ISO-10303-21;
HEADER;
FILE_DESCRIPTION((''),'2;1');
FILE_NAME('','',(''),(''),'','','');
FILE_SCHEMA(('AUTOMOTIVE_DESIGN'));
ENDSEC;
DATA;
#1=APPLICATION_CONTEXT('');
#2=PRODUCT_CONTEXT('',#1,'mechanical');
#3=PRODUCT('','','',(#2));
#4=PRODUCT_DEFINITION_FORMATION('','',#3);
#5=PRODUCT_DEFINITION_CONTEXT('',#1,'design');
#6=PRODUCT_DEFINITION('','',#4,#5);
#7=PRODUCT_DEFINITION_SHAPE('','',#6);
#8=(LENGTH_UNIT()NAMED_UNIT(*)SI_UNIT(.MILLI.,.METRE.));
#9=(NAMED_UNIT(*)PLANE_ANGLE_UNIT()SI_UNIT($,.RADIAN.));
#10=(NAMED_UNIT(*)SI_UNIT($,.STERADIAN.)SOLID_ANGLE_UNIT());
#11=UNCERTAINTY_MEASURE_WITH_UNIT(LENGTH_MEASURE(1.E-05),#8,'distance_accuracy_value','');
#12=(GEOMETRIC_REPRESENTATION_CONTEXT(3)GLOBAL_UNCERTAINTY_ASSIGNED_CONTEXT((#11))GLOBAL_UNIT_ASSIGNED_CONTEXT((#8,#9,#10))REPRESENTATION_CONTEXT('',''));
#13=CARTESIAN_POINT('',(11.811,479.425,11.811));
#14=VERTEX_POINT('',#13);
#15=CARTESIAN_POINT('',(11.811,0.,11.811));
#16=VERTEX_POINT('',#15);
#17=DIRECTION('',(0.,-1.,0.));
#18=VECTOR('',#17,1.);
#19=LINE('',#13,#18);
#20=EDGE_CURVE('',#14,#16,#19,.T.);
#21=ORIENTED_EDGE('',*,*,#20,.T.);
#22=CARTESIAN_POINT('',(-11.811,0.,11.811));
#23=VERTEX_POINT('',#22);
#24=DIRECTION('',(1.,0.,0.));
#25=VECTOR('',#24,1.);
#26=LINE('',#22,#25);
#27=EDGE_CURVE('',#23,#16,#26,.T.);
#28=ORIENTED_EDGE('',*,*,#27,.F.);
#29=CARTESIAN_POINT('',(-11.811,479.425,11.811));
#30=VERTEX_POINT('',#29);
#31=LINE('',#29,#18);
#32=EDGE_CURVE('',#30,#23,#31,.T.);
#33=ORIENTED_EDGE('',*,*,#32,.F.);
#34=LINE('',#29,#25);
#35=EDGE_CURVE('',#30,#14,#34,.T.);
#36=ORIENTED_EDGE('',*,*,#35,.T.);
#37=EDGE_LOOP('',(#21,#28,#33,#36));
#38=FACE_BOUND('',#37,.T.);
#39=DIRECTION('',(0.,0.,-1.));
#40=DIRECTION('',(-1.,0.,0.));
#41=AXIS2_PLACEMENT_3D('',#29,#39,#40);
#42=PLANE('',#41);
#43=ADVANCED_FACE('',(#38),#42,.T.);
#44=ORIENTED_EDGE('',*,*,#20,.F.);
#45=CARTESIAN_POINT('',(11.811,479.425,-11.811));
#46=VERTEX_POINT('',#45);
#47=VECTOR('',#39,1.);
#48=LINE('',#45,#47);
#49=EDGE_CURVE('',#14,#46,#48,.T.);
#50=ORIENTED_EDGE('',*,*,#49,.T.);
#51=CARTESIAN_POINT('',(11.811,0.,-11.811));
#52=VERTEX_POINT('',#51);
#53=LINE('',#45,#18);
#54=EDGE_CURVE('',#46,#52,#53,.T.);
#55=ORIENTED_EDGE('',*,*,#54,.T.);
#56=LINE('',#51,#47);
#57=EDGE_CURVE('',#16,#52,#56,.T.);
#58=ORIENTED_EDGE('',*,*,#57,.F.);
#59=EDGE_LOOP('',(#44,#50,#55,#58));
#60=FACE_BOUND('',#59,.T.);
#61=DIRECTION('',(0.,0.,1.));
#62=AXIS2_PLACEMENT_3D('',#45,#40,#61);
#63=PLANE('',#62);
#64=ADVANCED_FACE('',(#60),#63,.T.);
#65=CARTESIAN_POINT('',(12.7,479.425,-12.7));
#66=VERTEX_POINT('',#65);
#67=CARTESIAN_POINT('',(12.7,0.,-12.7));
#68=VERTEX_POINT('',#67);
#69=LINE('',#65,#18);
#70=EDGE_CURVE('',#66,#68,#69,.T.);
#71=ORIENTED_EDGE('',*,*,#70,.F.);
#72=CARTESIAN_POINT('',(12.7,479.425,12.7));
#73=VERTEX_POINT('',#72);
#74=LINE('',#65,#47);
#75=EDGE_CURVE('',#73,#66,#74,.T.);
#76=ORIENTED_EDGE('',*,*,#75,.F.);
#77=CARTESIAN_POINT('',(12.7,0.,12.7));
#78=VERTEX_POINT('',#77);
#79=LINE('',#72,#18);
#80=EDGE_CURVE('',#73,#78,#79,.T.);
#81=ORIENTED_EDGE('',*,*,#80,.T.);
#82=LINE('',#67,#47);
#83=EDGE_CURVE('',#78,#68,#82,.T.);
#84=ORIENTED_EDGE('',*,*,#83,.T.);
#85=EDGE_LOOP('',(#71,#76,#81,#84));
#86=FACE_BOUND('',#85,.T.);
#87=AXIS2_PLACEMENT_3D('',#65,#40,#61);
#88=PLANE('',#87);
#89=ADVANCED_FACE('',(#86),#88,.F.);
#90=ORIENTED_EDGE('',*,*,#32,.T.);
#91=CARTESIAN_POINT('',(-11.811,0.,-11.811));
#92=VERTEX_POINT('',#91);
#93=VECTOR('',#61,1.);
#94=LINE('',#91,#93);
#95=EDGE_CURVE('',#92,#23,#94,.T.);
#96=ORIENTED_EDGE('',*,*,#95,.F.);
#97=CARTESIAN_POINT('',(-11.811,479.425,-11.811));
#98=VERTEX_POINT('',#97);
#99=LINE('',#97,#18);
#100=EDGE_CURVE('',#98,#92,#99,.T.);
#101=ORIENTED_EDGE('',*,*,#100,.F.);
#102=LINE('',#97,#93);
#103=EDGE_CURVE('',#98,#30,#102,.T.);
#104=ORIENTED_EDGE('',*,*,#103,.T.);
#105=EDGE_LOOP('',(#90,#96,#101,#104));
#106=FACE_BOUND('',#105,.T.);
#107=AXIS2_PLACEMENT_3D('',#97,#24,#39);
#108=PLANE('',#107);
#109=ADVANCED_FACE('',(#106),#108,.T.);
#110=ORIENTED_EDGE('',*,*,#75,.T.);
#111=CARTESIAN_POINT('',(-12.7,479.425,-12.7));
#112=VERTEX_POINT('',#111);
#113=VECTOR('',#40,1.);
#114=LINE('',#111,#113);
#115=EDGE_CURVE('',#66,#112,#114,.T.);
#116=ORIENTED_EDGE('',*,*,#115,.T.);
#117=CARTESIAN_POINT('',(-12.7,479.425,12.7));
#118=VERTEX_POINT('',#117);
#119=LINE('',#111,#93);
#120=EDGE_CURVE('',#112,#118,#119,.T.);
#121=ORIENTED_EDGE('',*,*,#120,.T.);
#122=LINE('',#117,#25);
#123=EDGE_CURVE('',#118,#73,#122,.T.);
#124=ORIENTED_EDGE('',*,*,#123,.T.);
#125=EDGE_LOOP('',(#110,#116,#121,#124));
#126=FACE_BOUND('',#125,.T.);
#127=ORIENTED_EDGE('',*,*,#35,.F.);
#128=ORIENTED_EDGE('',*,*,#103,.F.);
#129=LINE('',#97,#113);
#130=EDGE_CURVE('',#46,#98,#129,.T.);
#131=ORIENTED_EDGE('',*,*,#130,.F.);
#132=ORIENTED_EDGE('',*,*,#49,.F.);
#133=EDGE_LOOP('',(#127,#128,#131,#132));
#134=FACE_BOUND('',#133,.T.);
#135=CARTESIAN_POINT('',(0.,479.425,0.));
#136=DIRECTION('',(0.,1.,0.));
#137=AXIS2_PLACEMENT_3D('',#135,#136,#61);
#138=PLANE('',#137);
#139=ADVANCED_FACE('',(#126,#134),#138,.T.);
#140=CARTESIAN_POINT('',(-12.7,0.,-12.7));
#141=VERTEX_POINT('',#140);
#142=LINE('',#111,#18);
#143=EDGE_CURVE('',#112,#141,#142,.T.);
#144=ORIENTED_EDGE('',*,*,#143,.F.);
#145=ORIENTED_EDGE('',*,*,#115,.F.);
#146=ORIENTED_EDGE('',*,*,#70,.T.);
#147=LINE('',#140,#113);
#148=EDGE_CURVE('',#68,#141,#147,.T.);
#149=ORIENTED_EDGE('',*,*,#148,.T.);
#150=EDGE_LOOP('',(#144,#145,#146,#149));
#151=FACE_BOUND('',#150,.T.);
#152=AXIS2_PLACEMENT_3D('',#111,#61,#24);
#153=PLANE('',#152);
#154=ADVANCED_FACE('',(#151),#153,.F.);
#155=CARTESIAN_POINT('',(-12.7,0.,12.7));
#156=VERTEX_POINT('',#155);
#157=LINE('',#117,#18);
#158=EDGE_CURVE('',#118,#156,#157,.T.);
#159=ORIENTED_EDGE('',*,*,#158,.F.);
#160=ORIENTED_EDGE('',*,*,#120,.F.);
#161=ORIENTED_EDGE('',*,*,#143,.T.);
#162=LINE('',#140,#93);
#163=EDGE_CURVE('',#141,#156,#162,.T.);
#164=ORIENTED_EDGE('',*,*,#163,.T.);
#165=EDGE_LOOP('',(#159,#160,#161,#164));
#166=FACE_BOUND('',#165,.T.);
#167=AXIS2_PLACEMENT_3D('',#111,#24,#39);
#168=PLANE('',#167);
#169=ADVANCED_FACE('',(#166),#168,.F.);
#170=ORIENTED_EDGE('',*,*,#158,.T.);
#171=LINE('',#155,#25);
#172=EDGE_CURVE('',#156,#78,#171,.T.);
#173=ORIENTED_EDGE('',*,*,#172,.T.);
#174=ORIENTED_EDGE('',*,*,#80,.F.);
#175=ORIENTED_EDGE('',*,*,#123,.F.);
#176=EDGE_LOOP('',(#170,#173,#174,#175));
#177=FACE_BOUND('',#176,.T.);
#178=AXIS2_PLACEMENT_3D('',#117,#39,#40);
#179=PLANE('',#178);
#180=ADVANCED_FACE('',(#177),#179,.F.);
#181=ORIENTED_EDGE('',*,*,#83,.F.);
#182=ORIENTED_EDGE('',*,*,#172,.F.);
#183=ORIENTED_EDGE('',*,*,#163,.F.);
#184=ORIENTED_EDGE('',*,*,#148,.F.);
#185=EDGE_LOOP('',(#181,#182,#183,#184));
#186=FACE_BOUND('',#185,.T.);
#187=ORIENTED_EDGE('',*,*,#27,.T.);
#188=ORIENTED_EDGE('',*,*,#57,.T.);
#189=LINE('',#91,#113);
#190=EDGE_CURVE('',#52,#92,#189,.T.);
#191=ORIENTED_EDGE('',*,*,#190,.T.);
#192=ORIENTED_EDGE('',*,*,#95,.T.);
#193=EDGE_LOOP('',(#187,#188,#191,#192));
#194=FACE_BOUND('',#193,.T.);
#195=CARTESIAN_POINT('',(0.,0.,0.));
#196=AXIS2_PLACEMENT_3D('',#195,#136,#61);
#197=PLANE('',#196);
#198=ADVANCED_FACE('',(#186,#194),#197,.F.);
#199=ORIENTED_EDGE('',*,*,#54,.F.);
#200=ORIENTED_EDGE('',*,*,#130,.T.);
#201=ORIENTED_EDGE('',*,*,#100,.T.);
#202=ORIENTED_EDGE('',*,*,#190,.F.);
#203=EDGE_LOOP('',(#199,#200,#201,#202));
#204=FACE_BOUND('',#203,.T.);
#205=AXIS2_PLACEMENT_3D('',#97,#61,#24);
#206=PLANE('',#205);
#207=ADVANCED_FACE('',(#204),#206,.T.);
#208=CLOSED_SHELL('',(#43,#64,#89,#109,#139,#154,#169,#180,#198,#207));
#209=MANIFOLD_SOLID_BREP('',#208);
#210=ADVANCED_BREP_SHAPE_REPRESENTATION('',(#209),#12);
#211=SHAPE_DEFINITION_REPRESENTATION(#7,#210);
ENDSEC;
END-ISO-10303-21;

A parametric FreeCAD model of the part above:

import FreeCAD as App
import Part
import Sketcher
from FreeCAD import Vector
Q = App.Units.Quantity

doc = App.newDocument("Part")
body = doc.addObject("PartDesign::Body", "Body")

# Sketch on XZ plane
sketch1 = body.newObject("Sketcher::SketchObject", "Sketch")
sketch1.AttachmentSupport = (doc.getObject("XZ_Plane"), [""])
sketch1.MapMode = "FlatFace"
sketch1.addGeometry(Part.LineSegment(Vector(-13, -13, 0), Vector(-13, 13, 0)), False)
sketch1.addGeometry(Part.LineSegment(Vector(-13, 13, 0), Vector(13, 13, 0)), False)
sketch1.addGeometry(Part.LineSegment(Vector(13, 13, 0), Vector(13, -13, 0)), False)
sketch1.addGeometry(Part.LineSegment(Vector(13, -13, 0), Vector(-13, -13, 0)), False)
sketch1.addGeometry(Part.LineSegment(Vector(12, 12, 0), Vector(-12, 12, 0)), False)
sketch1.addGeometry(Part.LineSegment(Vector(-12, 12, 0), Vector(-12, -12, 0)), False)
sketch1.addGeometry(Part.LineSegment(Vector(-12, -12, 0), Vector(12, -12, 0)), False)
sketch1.addGeometry(Part.LineSegment(Vector(12, -12, 0), Vector(12, 12, 0)), False)
sketch1.addConstraint(Sketcher.Constraint("Coincident", 0, 2, 1, 1))
sketch1.addConstraint(Sketcher.Constraint("Coincident", 1, 2, 2, 1))
sketch1.addConstraint(Sketcher.Constraint("Coincident", 2, 2, 3, 1))
sketch1.addConstraint(Sketcher.Constraint("Coincident", 3, 2, 0, 1))
sketch1.addConstraint(Sketcher.Constraint("Coincident", 4, 2, 5, 1))
sketch1.addConstraint(Sketcher.Constraint("Coincident", 5, 2, 6, 1))
sketch1.addConstraint(Sketcher.Constraint("Coincident", 6, 2, 7, 1))
sketch1.addConstraint(Sketcher.Constraint("Coincident", 7, 2, 4, 1))
sketch1.addConstraint(Sketcher.Constraint("Vertical", 0))
sketch1.addConstraint(Sketcher.Constraint("Horizontal", 1))
sketch1.addConstraint(Sketcher.Constraint("Vertical", 2))
sketch1.addConstraint(Sketcher.Constraint("Horizontal", 3))
sketch1.addConstraint(Sketcher.Constraint("Horizontal", 4))
sketch1.addConstraint(Sketcher.Constraint("Vertical", 5))
sketch1.addConstraint(Sketcher.Constraint("Horizontal", 6))
sketch1.addConstraint(Sketcher.Constraint("Vertical", 7))
sketch1.addConstraint(Sketcher.Constraint("Symmetric", 0, 2, 2, 2, -1, 1))
sketch1.addConstraint(Sketcher.Constraint("Symmetric", 4, 2, 6, 2, -1, 1))
sketch1.addConstraint(Sketcher.Constraint("Equal", 3, 0))
sketch1.addConstraint(Sketcher.Constraint("Equal", 6, 5))
sketch1.addConstraint(Sketcher.Constraint("DistanceX", 1, 1, 1, 2, Q("1 in")))
sketch1.addConstraint(Sketcher.Constraint("DistanceX", 4, 2, 4, 1, Q("0.93 in")))
pad1 = body.newObject("PartDesign::Pad", "Pad")
pad1.Profile = sketch1
pad1.Length = Q("18.875 in")
pad1.Reversed = True

doc.recompute()
